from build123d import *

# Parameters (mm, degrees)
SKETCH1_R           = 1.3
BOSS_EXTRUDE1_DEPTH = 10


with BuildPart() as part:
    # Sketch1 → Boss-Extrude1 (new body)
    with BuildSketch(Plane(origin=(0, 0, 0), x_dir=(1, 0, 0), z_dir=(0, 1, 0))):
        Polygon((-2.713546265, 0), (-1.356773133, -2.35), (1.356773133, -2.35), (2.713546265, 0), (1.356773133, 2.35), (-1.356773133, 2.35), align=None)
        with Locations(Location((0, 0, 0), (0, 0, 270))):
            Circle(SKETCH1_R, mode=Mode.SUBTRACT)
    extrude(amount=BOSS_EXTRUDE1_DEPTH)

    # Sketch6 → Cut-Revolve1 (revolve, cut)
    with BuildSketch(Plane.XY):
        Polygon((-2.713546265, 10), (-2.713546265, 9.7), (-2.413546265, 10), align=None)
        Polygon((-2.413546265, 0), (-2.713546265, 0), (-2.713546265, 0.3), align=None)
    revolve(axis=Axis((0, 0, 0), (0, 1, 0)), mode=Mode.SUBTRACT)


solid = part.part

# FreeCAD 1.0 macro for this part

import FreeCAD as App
import Part
import Sketcher
from FreeCAD import Vector
Q = App.Units.Quantity

doc = App.newDocument("Part")
params = doc.addObject("Spreadsheet::Sheet", "Params")
for row, (alias, value) in enumerate([
    ("sketch1_diameter", "2.6 mm"),
    ("pad1_length", "10 mm"),
    ("sketch2_width", "0.3 mm"),
    ("groove_angle", "360 deg"),
], start=1):
    params.set(f"A{row}", alias)
    params.set(f"B{row}", "=" + value)
    params.setAlias(f"B{row}", alias)

body = doc.addObject("PartDesign::Body", "Body")

# Sketch on XZ plane
sketch1 = body.newObject("Sketcher::SketchObject", "Sketch")
sketch1.AttachmentSupport = (doc.getObject("XZ_Plane"), [""])
sketch1.MapMode = "FlatFace"
sketch1.addGeometry([
    Part.LineSegment(Vector(-2.7, 0, 0), Vector(-1.4, 2.4, 0)),  # 0
    Part.LineSegment(Vector(-1.4, 2.4, 0), Vector(1.4, 2.4, 0)),  # 1
    Part.LineSegment(Vector(1.4, 2.4, 0), Vector(2.7, 0, 0)),  # 2
    Part.LineSegment(Vector(2.7, 0, 0), Vector(1.4, -2.4, 0)),  # 3
    Part.LineSegment(Vector(1.4, -2.4, 0), Vector(-1.4, -2.4, 0)),  # 4
    Part.LineSegment(Vector(-1.4, -2.4, 0), Vector(-2.7, 0, 0)),  # 5
    Part.Circle(Vector(0, 0, 0), Vector(0, 0, 1), 1.3),  # 6
], False)
sketch1.addConstraint([
    Sketcher.Constraint("Coincident", 0, 2, 1, 1),
    Sketcher.Constraint("Coincident", 1, 2, 2, 1),
    Sketcher.Constraint("Coincident", 2, 2, 3, 1),
    Sketcher.Constraint("Coincident", 3, 2, 4, 1),
    Sketcher.Constraint("Coincident", 4, 2, 5, 1),
    Sketcher.Constraint("Coincident", 5, 2, 0, 1),
    Sketcher.Constraint("Horizontal", 1),
    Sketcher.Constraint("Horizontal", 4),
    Sketcher.Constraint("Coincident", 6, 3, -1, 1),
    Sketcher.Constraint("Symmetric", 0, 2, 3, 2, -1, 1),
    Sketcher.Constraint("Symmetric", 2, 2, 5, 2, -1, 1),
    Sketcher.Constraint("PointOnObject", 2, 2, -1),
    Sketcher.Constraint("Parallel", 2, 5),
    Sketcher.Constraint("Vertical", 1, 2, 3, 2),
    Sketcher.Constraint("Diameter", 6, 2.6),
    Sketcher.Constraint("Angle", 0, Q("60 deg")),
    Sketcher.Constraint("DistanceY", 3, 2, 1, 2, 4.7),
    Sketcher.Constraint("DistanceX", 1, 1, 1, 2, 2.713546),
])
sketch1.setExpression("Constraints[14]", "Params.sketch1_diameter")
pad1 = body.newObject("PartDesign::Pad", "Pad")
pad1.Profile = sketch1
pad1.setExpression("Length", "Params.pad1_length")
pad1.Reversed = True

# Sketch on XY plane
sketch2 = body.newObject("Sketcher::SketchObject", "Sketch001")
sketch2.AttachmentSupport = (doc.getObject("XY_Plane"), [""])
sketch2.MapMode = "FlatFace"
sketch2.addGeometry([
    Part.LineSegment(Vector(-2.71, 10, 0), Vector(-2.71, 9.7, 0)),  # 0
    Part.LineSegment(Vector(-2.71, 9.7, 0), Vector(-2.41, 10, 0)),  # 1
    Part.LineSegment(Vector(-2.41, 10, 0), Vector(-2.71, 10, 0)),  # 2
    Part.LineSegment(Vector(-2.71, 0, 0), Vector(-2.41, 0, 0)),  # 3
    Part.LineSegment(Vector(-2.41, 0, 0), Vector(-2.71, 0.3, 0)),  # 4
    Part.LineSegment(Vector(-2.71, 0.3, 0), Vector(-2.71, 0, 0)),  # 5
], False)
sketch2.addConstraint([
    Sketcher.Constraint("Coincident", 0, 2, 1, 1),
    Sketcher.Constraint("Coincident", 1, 2, 2, 1),
    Sketcher.Constraint("Coincident", 2, 2, 0, 1),
    Sketcher.Constraint("Coincident", 3, 2, 4, 1),
    Sketcher.Constraint("Coincident", 4, 2, 5, 1),
    Sketcher.Constraint("Coincident", 5, 2, 3, 1),
    Sketcher.Constraint("Vertical", 0),
    Sketcher.Constraint("Horizontal", 2),
    Sketcher.Constraint("Horizontal", 3),
    Sketcher.Constraint("Vertical", 5),
    Sketcher.Constraint("PointOnObject", 3, 2, -1),
    Sketcher.Constraint("Perpendicular", 1, 4),
    Sketcher.Constraint("Vertical", 1, 2, 3, 2),
    Sketcher.Constraint("Vertical", 2, 2, 4, 2),
    Sketcher.Constraint("Equal", 3, 0),
    Sketcher.Constraint("DistanceX", 2, 2, 2, 1, 0.3),
    Sketcher.Constraint("DistanceY", -1, 1, 1, 2, 10.0),
    Sketcher.Constraint("DistanceX", 0, 2, -1, 1, 2.713546),
])
sketch2.setExpression("Constraints[15]", "Params.sketch2_width")
groove = body.newObject("PartDesign::Groove", "Groove")
groove.Profile = sketch2
groove.ReferenceAxis = (sketch2, ["V_Axis"])
groove.setExpression("Angle", "Params.groove_angle")

doc.recompute()
